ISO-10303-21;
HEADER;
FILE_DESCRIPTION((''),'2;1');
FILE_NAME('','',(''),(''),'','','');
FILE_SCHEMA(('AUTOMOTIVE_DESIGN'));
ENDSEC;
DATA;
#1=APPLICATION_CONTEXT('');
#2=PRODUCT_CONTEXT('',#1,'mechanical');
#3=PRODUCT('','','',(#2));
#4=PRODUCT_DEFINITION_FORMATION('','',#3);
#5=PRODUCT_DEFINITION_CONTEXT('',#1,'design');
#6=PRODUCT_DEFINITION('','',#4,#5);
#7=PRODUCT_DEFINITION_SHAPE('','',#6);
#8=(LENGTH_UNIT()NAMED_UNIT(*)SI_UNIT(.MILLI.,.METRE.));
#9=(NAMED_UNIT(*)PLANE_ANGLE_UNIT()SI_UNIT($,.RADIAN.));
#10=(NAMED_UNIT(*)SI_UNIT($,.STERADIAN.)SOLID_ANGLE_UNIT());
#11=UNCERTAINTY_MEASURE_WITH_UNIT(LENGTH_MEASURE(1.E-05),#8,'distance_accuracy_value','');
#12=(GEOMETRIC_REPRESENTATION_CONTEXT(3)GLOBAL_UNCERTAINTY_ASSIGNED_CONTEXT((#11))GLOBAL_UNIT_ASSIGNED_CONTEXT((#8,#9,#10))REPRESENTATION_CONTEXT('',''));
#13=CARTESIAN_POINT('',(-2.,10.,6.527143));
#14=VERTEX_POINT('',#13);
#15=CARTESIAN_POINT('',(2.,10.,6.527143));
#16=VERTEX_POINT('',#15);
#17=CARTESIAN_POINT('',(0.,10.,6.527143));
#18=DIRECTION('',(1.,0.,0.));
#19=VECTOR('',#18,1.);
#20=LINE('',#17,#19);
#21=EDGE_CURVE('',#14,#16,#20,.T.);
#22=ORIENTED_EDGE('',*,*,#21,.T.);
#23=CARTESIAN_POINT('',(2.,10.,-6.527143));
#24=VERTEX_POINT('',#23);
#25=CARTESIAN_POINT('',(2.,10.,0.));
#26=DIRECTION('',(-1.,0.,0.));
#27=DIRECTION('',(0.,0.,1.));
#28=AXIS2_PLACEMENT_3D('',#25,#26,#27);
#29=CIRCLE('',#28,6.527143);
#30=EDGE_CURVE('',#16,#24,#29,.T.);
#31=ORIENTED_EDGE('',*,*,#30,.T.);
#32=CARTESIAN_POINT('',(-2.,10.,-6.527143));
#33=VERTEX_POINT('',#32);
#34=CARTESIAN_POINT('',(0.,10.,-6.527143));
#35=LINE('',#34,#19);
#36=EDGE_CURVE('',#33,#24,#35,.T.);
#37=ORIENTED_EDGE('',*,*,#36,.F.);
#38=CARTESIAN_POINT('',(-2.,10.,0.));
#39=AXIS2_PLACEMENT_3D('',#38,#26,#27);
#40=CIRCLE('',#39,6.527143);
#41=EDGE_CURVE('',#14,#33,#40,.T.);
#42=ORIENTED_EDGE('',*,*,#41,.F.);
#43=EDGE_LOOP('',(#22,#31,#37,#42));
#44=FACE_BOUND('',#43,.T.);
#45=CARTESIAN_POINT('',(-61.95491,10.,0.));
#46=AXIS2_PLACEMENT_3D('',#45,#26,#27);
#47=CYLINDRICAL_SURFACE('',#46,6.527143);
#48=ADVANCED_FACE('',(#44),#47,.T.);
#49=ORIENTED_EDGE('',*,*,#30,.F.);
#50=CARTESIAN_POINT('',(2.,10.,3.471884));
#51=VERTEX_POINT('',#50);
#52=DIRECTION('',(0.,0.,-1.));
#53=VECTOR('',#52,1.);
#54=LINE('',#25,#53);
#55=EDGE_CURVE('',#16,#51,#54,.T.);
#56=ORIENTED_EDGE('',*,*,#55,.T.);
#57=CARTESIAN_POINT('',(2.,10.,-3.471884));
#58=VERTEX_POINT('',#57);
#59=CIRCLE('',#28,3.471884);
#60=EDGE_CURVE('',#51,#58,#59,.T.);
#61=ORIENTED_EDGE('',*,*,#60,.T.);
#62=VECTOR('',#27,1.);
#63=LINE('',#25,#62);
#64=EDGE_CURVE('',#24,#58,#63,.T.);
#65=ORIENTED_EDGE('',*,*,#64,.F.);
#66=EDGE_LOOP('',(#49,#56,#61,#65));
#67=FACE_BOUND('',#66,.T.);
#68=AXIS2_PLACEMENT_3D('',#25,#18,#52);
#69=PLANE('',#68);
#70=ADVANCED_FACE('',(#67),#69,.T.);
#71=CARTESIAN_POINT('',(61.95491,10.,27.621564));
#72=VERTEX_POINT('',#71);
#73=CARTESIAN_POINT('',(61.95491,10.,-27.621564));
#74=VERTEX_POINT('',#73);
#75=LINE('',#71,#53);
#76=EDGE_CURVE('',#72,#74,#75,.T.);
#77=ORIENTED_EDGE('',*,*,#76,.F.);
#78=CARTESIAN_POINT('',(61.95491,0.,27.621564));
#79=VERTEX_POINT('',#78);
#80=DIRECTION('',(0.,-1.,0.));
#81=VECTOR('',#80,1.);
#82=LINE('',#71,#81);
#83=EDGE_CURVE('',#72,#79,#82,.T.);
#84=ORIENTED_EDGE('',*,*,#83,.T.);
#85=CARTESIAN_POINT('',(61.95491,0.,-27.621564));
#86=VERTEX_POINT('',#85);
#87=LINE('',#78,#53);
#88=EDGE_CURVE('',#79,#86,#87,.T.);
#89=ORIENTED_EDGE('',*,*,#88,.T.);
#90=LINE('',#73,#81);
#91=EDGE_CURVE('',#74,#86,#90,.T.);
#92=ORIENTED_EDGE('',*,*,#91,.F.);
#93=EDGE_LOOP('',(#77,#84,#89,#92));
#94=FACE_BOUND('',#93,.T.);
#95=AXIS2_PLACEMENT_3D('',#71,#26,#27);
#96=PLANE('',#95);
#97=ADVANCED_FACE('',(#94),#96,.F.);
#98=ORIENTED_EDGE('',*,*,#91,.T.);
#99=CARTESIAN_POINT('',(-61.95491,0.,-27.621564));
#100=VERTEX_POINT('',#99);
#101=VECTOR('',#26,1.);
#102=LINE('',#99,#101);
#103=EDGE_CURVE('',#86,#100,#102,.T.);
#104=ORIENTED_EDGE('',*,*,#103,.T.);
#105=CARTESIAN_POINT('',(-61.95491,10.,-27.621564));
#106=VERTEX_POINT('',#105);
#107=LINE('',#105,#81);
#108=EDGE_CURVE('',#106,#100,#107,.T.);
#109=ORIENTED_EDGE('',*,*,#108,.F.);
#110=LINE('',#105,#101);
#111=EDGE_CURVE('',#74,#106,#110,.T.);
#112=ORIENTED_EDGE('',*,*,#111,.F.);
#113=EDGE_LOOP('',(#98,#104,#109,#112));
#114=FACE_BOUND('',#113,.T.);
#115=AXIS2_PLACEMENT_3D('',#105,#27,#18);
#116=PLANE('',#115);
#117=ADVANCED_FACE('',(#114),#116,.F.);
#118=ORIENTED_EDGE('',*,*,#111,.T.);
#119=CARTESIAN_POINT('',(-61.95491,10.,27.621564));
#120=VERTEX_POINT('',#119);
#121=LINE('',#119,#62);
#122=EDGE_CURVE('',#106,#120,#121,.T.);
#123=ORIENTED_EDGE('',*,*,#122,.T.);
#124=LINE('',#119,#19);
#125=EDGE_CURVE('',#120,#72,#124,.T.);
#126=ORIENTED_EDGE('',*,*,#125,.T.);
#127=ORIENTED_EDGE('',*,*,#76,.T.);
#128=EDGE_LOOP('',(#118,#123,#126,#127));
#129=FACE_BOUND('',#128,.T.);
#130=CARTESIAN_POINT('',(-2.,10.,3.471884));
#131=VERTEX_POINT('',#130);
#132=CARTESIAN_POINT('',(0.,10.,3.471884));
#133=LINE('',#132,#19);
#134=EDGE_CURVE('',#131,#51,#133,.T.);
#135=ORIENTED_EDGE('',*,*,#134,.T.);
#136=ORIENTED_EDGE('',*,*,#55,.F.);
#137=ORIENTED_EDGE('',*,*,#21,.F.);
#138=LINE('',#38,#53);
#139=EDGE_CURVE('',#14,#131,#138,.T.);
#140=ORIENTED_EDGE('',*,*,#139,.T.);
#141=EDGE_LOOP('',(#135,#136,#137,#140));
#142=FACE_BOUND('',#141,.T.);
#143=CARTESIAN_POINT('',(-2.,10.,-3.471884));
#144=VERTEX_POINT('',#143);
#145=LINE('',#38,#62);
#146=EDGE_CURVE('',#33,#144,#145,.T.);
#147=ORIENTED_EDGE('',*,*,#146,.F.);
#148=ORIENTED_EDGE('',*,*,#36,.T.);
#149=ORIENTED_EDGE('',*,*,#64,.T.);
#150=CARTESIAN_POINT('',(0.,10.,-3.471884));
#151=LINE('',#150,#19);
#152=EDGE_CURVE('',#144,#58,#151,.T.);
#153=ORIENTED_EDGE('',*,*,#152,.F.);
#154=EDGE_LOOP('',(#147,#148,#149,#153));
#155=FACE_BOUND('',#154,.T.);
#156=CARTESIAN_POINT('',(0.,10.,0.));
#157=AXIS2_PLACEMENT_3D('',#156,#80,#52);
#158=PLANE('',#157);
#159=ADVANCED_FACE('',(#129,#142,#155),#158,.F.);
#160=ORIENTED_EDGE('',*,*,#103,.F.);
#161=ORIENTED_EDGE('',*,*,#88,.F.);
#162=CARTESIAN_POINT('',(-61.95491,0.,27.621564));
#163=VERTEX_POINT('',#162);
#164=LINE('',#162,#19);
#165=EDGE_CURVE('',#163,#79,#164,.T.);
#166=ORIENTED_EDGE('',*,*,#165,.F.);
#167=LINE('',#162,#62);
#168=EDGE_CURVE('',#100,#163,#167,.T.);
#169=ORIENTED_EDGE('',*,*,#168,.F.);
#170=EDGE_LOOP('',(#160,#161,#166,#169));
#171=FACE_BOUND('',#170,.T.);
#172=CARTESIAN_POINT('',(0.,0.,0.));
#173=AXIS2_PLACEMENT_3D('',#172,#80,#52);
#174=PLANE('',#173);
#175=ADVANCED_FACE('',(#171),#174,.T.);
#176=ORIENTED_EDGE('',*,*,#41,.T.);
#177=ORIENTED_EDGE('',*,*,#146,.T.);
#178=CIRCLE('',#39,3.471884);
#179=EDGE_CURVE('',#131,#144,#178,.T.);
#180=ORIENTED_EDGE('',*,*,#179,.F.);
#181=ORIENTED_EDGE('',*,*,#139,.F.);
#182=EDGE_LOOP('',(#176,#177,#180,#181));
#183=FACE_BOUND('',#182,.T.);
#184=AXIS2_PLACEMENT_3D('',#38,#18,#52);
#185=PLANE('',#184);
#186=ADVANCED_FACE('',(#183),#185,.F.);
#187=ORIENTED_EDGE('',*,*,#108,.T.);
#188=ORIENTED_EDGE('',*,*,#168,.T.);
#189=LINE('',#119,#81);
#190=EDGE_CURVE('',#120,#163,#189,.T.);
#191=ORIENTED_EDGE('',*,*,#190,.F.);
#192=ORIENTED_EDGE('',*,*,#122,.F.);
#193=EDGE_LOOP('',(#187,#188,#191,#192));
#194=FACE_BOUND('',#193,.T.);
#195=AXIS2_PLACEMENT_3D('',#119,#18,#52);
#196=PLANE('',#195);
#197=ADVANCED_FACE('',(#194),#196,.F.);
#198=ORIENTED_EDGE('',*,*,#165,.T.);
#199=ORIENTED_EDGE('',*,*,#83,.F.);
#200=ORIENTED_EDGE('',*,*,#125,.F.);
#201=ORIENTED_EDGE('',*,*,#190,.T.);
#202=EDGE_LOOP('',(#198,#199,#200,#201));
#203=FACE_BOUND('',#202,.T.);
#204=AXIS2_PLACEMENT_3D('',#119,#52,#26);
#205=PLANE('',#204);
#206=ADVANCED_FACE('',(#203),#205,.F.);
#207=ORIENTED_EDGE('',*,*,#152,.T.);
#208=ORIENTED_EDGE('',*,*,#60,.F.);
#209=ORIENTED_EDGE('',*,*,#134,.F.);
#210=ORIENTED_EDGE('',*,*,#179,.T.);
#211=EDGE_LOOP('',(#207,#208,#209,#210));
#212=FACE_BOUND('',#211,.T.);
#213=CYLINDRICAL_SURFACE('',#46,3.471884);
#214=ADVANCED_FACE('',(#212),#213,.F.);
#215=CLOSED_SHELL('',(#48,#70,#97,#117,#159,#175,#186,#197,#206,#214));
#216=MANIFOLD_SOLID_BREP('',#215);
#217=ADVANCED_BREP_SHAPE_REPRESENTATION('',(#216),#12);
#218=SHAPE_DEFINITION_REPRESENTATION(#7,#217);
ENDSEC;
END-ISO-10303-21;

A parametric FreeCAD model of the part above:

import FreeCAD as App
import Part
import Sketcher
Q = App.Units.Quantity


def add_polygon(sketch, points):
    """Adds a closed chain of lines whose ends are joined by coincident constraints."""
    first, n = sketch.GeometryCount, len(points)
    for a, b in zip(points, points[1:] + points[:1]):
        sketch.addGeometry(Part.LineSegment(App.Vector(*a, 0), App.Vector(*b, 0)), False)
    for i in range(n):
        sketch.addConstraint(Sketcher.Constraint("Coincident", first + i, 2, first + (i + 1) % n, 1))

doc = App.newDocument("Part")
body = doc.addObject("PartDesign::Body", "Body")

sketch1 = body.newObject("Sketcher::SketchObject", "Sketch")
sketch1.AttachmentSupport = (doc.getObject("XZ_Plane"), [""])
sketch1.MapMode = "FlatFace"
add_polygon(sketch1, [(-61.95491, -27.621564), (-61.95491, 27.621564), (61.95491, 27.621564), (61.95491, -27.621564)])
sketch1.addConstraint(Sketcher.Constraint("Vertical", 0))
sketch1.addConstraint(Sketcher.Constraint("Horizontal", 1))
sketch1.addConstraint(Sketcher.Constraint("Vertical", 2))
sketch1.addConstraint(Sketcher.Constraint("Horizontal", 3))
sketch1.addConstraint(Sketcher.Constraint("Symmetric", 0, 2, 2, 2, -1, 1))
sketch1.addConstraint(Sketcher.Constraint("DistanceX", 1, 1, 1, 2, Q("123.90982 mm")))
sketch1.addConstraint(Sketcher.Constraint("DistanceY", 0, 1, 0, 2, Q("55.243128 mm")))
pad1 = body.newObject("PartDesign::Pad", "Pad")
pad1.Profile = sketch1
pad1.Length = 10
pad1.Reversed = True

sketch2 = body.newObject("Sketcher::SketchObject", "Sketch001")
sketch2.AttachmentSupport = (doc.getObject("XZ_Plane"), [""])
sketch2.MapMode = "FlatFace"
sketch2.AttachmentOffset = App.Placement(App.Vector(0, 0, -10), App.Rotation())
add_polygon(sketch2, [(-2, -6.527143), (-2, -3.471884), (2, -3.471884), (2, -6.527143)])
sketch2.addConstraint(Sketcher.Constraint("Vertical", 0))
sketch2.addConstraint(Sketcher.Constraint("Horizontal", 1))
sketch2.addConstraint(Sketcher.Constraint("Vertical", 2))
sketch2.addConstraint(Sketcher.Constraint("Horizontal", 3))
sketch2.addConstraint(Sketcher.Constraint("DistanceX", 1, 1, 1, 2, Q("4 mm")))
sketch2.addConstraint(Sketcher.Constraint("DistanceX", 0, 2, -1, 1, Q("2 mm")))
sketch2.addConstraint(Sketcher.Constraint("DistanceY", 0, 1, 0, 2, Q("3.055258 mm")))
sketch2.addConstraint(Sketcher.Constraint("DistanceY", 0, 2, -1, 1, Q("3.471884 mm")))
revolution = body.newObject("PartDesign::Revolution", "Revolution")
revolution.Profile = sketch2
revolution.ReferenceAxis = (sketch2, ["H_Axis"])
revolution.Angle = 180

doc.recompute()
